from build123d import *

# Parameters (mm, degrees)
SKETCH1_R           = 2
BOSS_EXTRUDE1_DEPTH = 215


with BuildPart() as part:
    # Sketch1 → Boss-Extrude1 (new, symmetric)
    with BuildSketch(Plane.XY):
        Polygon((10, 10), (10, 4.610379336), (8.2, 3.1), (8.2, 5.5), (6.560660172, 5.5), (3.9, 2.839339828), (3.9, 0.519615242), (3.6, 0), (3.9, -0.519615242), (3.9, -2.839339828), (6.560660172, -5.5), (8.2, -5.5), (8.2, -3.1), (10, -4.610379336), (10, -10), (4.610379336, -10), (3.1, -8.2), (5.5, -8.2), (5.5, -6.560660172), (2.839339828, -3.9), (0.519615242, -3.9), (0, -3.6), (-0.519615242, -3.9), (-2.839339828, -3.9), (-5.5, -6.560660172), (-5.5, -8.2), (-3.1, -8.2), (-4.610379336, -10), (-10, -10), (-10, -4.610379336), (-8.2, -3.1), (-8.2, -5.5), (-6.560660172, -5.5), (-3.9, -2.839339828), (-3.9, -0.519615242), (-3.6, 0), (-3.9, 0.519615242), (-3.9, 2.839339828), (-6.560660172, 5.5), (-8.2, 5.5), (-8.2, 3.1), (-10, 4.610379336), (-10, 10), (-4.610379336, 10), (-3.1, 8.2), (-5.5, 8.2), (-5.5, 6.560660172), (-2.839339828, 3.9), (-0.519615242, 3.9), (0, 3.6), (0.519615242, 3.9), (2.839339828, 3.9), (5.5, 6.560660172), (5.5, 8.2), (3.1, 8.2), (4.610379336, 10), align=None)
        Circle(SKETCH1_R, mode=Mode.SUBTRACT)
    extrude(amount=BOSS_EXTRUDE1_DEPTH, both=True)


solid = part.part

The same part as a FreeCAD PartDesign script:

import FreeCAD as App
import Part
import Sketcher
Q = App.Units.Quantity

doc = App.newDocument("Part")
params = doc.addObject("Spreadsheet::Sheet", "Params")
for row, (alias, value) in enumerate([
    ("sketch1_diameter", "4 mm"),
    ("sketch1_width", "2.4 mm"),
    ("sketch1_length", "0.6 mm"),
    ("pad1_length", "430 mm"),
], start=1):
    params.set(f"A{row}", alias)
    params.set(f"B{row}", "=" + value)
    params.setAlias(f"B{row}", alias)

body = doc.addObject("PartDesign::Body", "Body")

# Sketch on XY plane
sketch1 = doc.addObject("Sketcher::SketchObject", "Sketch")
body.addObject(sketch1)
sketch1.AttachmentSupport = (doc.XY_Plane, [""])
sketch1.MapMode = "FlatFace"
sketch1.addGeometry([
    Part.LineSegment(App.Vector(10, 4.610379, 0), App.Vector(10, 10, 0)),  # 0
    Part.LineSegment(App.Vector(10, 10, 0), App.Vector(4.610379, 10, 0)),  # 1
    Part.LineSegment(App.Vector(4.610379, 10, 0), App.Vector(3.1, 8.2, 0)),  # 2
    Part.LineSegment(App.Vector(3.1, 8.2, 0), App.Vector(5.5, 8.2, 0)),  # 3
    Part.LineSegment(App.Vector(5.5, 8.2, 0), App.Vector(5.5, 6.56066, 0)),  # 4
    Part.LineSegment(App.Vector(5.5, 6.56066, 0), App.Vector(2.83934, 3.9, 0)),  # 5
    Part.LineSegment(App.Vector(2.83934, 3.9, 0), App.Vector(0.519615, 3.9, 0)),  # 6
    Part.LineSegment(App.Vector(0.519615, 3.9, 0), App.Vector(0, 3.6, 0)),  # 7
    Part.LineSegment(App.Vector(0, 3.6, 0), App.Vector(-0.519615, 3.9, 0)),  # 8
    Part.LineSegment(App.Vector(-0.519615, 3.9, 0), App.Vector(-2.83934, 3.9, 0)),  # 9
    Part.LineSegment(App.Vector(-2.83934, 3.9, 0), App.Vector(-5.5, 6.56066, 0)),  # 10
    Part.LineSegment(App.Vector(-5.5, 6.56066, 0), App.Vector(-5.5, 8.2, 0)),  # 11
    Part.LineSegment(App.Vector(-5.5, 8.2, 0), App.Vector(-3.1, 8.2, 0)),  # 12
    Part.LineSegment(App.Vector(-3.1, 8.2, 0), App.Vector(-4.610379, 10, 0)),  # 13
    Part.LineSegment(App.Vector(-4.610379, 10, 0), App.Vector(-10, 10, 0)),  # 14
    Part.LineSegment(App.Vector(-10, 10, 0), App.Vector(-10, 4.610379, 0)),  # 15
    Part.LineSegment(App.Vector(-10, 4.610379, 0), App.Vector(-8.2, 3.1, 0)),  # 16
    Part.LineSegment(App.Vector(-8.2, 3.1, 0), App.Vector(-8.2, 5.5, 0)),  # 17
    Part.LineSegment(App.Vector(-8.2, 5.5, 0), App.Vector(-6.56066, 5.5, 0)),  # 18
    Part.LineSegment(App.Vector(-6.56066, 5.5, 0), App.Vector(-3.9, 2.83934, 0)),  # 19
    Part.LineSegment(App.Vector(-3.9, 2.83934, 0), App.Vector(-3.9, 0.519615, 0)),  # 20
    Part.LineSegment(App.Vector(-3.9, 0.519615, 0), App.Vector(-3.6, 0, 0)),  # 21
    Part.LineSegment(App.Vector(-3.6, 0, 0), App.Vector(-3.9, -0.519615, 0)),  # 22
    Part.LineSegment(App.Vector(-3.9, -0.519615, 0), App.Vector(-3.9, -2.83934, 0)),  # 23
    Part.LineSegment(App.Vector(-3.9, -2.83934, 0), App.Vector(-6.56066, -5.5, 0)),  # 24
    Part.LineSegment(App.Vector(-6.56066, -5.5, 0), App.Vector(-8.2, -5.5, 0)),  # 25
    Part.LineSegment(App.Vector(-8.2, -5.5, 0), App.Vector(-8.2, -3.1, 0)),  # 26
    Part.LineSegment(App.Vector(-8.2, -3.1, 0), App.Vector(-10, -4.610379, 0)),  # 27
    Part.LineSegment(App.Vector(-10, -4.610379, 0), App.Vector(-10, -10, 0)),  # 28
    Part.LineSegment(App.Vector(-10, -10, 0), App.Vector(-4.610379, -10, 0)),  # 29
    Part.LineSegment(App.Vector(-4.610379, -10, 0), App.Vector(-3.1, -8.2, 0)),  # 30
    Part.LineSegment(App.Vector(-3.1, -8.2, 0), App.Vector(-5.5, -8.2, 0)),  # 31
    Part.LineSegment(App.Vector(-5.5, -8.2, 0), App.Vector(-5.5, -6.56066, 0)),  # 32
    Part.LineSegment(App.Vector(-5.5, -6.56066, 0), App.Vector(-2.83934, -3.9, 0)),  # 33
    Part.LineSegment(App.Vector(-2.83934, -3.9, 0), App.Vector(-0.519615, -3.9, 0)),  # 34
    Part.LineSegment(App.Vector(-0.519615, -3.9, 0), App.Vector(0, -3.6, 0)),  # 35
    Part.LineSegment(App.Vector(0, -3.6, 0), App.Vector(0.519615, -3.9, 0)),  # 36
    Part.LineSegment(App.Vector(0.519615, -3.9, 0), App.Vector(2.83934, -3.9, 0)),  # 37
    Part.LineSegment(App.Vector(2.83934, -3.9, 0), App.Vector(5.5, -6.56066, 0)),  # 38
    Part.LineSegment(App.Vector(5.5, -6.56066, 0), App.Vector(5.5, -8.2, 0)),  # 39
    Part.LineSegment(App.Vector(5.5, -8.2, 0), App.Vector(3.1, -8.2, 0)),  # 40
    Part.LineSegment(App.Vector(3.1, -8.2, 0), App.Vector(4.610379, -10, 0)),  # 41
    Part.LineSegment(App.Vector(4.610379, -10, 0), App.Vector(10, -10, 0)),  # 42
    Part.LineSegment(App.Vector(10, -10, 0), App.Vector(10, -4.610379, 0)),  # 43
    Part.LineSegment(App.Vector(10, -4.610379, 0), App.Vector(8.2, -3.1, 0)),  # 44
    Part.LineSegment(App.Vector(8.2, -3.1, 0), App.Vector(8.2, -5.5, 0)),  # 45
    Part.LineSegment(App.Vector(8.2, -5.5, 0), App.Vector(6.56066, -5.5, 0)),  # 46
    Part.LineSegment(App.Vector(6.56066, -5.5, 0), App.Vector(3.9, -2.83934, 0)),  # 47
    Part.LineSegment(App.Vector(3.9, -2.83934, 0), App.Vector(3.9, -0.519615, 0)),  # 48
    Part.LineSegment(App.Vector(3.9, -0.519615, 0), App.Vector(3.6, 0, 0)),  # 49
    Part.LineSegment(App.Vector(3.6, 0, 0), App.Vector(3.9, 0.519615, 0)),  # 50
    Part.LineSegment(App.Vector(3.9, 0.519615, 0), App.Vector(3.9, 2.83934, 0)),  # 51
    Part.LineSegment(App.Vector(3.9, 2.83934, 0), App.Vector(6.56066, 5.5, 0)),  # 52
    Part.LineSegment(App.Vector(6.56066, 5.5, 0), App.Vector(8.2, 5.5, 0)),  # 53
    Part.LineSegment(App.Vector(8.2, 5.5, 0), App.Vector(8.2, 3.1, 0)),  # 54
    Part.LineSegment(App.Vector(8.2, 3.1, 0), App.Vector(10, 4.610379, 0)),  # 55
    Part.Circle(App.Vector(0, 0, 0), App.Vector(0, 0, 1), 2),  # 56
], False)
sketch1.addConstraint([
    Sketcher.Constraint("Coincident", 0, 2, 1, 1),
    Sketcher.Constraint("Coincident", 1, 2, 2, 1),
    Sketcher.Constraint("Coincident", 2, 2, 3, 1),
    Sketcher.Constraint("Coincident", 3, 2, 4, 1),
    Sketcher.Constraint("Coincident", 4, 2, 5, 1),
    Sketcher.Constraint("Coincident", 5, 2, 6, 1),
    Sketcher.Constraint("Coincident", 6, 2, 7, 1),
    Sketcher.Constraint("Coincident", 7, 2, 8, 1),
    Sketcher.Constraint("Coincident", 8, 2, 9, 1),
    Sketcher.Constraint("Coincident", 9, 2, 10, 1),
    Sketcher.Constraint("Coincident", 10, 2, 11, 1),
    Sketcher.Constraint("Coincident", 11, 2, 12, 1),
    Sketcher.Constraint("Coincident", 12, 2, 13, 1),
    Sketcher.Constraint("Coincident", 13, 2, 14, 1),
    Sketcher.Constraint("Coincident", 14, 2, 15, 1),
    Sketcher.Constraint("Coincident", 15, 2, 16, 1),
    Sketcher.Constraint("Coincident", 16, 2, 17, 1),
    Sketcher.Constraint("Coincident", 17, 2, 18, 1),
    Sketcher.Constraint("Coincident", 18, 2, 19, 1),
    Sketcher.Constraint("Coincident", 19, 2, 20, 1),
    Sketcher.Constraint("Coincident", 20, 2, 21, 1),
    Sketcher.Constraint("Coincident", 21, 2, 22, 1),
    Sketcher.Constraint("Coincident", 22, 2, 23, 1),
    Sketcher.Constraint("Coincident", 23, 2, 24, 1),
    Sketcher.Constraint("Coincident", 24, 2, 25, 1),
    Sketcher.Constraint("Coincident", 25, 2, 26, 1),
    Sketcher.Constraint("Coincident", 26, 2, 27, 1),
    Sketcher.Constraint("Coincident", 27, 2, 28, 1),
    Sketcher.Constraint("Coincident", 28, 2, 29, 1),
    Sketcher.Constraint("Coincident", 29, 2, 30, 1),
    Sketcher.Constraint("Coincident", 30, 2, 31, 1),
    Sketcher.Constraint("Coincident", 31, 2, 32, 1),
    Sketcher.Constraint("Coincident", 32, 2, 33, 1),
    Sketcher.Constraint("Coincident", 33, 2, 34, 1),
    Sketcher.Constraint("Coincident", 34, 2, 35, 1),
    Sketcher.Constraint("Coincident", 35, 2, 36, 1),
    Sketcher.Constraint("Coincident", 36, 2, 37, 1),
    Sketcher.Constraint("Coincident", 37, 2, 38, 1),
    Sketcher.Constraint("Coincident", 38, 2, 39, 1),
    Sketcher.Constraint("Coincident", 39, 2, 40, 1),
    Sketcher.Constraint("Coincident", 40, 2, 41, 1),
    Sketcher.Constraint("Coincident", 41, 2, 42, 1),
    Sketcher.Constraint("Coincident", 42, 2, 43, 1),
    Sketcher.Constraint("Coincident", 43, 2, 44, 1),
    Sketcher.Constraint("Coincident", 44, 2, 45, 1),
    Sketcher.Constraint("Coincident", 45, 2, 46, 1),
    Sketcher.Constraint("Coincident", 46, 2, 47, 1),
    Sketcher.Constraint("Coincident", 47, 2, 48, 1),
    Sketcher.Constraint("Coincident", 48, 2, 49, 1),
    Sketcher.Constraint("Coincident", 49, 2, 50, 1),
    Sketcher.Constraint("Coincident", 50, 2, 51, 1),
    Sketcher.Constraint("Coincident", 51, 2, 52, 1),
    Sketcher.Constraint("Coincident", 52, 2, 53, 1),
    Sketcher.Constraint("Coincident", 53, 2, 54, 1),
    Sketcher.Constraint("Coincident", 54, 2, 55, 1),
    Sketcher.Constraint("Coincident", 55, 2, 0, 1),
    Sketcher.Constraint("Vertical", 0),
    Sketcher.Constraint("Horizontal", 1),
    Sketcher.Constraint("Horizontal", 3),
    Sketcher.Constraint("Vertical", 4),
    Sketcher.Constraint("Horizontal", 6),
    Sketcher.Constraint("Horizontal", 9),
    Sketcher.Constraint("Vertical", 11),
    Sketcher.Constraint("Horizontal", 12),
    Sketcher.Constraint("Horizontal", 14),
    Sketcher.Constraint("Vertical", 15),
    Sketcher.Constraint("Vertical", 17),
    Sketcher.Constraint("Horizontal", 18),
    Sketcher.Constraint("Vertical", 20),
    Sketcher.Constraint("Vertical", 23),
    Sketcher.Constraint("Horizontal", 25),
    Sketcher.Constraint("Vertical", 26),
    Sketcher.Constraint("Vertical", 28),
    Sketcher.Constraint("Horizontal", 29),
    Sketcher.Constraint("Horizontal", 31),
    Sketcher.Constraint("Vertical", 32),
    Sketcher.Constraint("Horizontal", 34),
    Sketcher.Constraint("Horizontal", 37),
    Sketcher.Constraint("Vertical", 39),
    Sketcher.Constraint("Horizontal", 40),
    Sketcher.Constraint("Horizontal", 42),
    Sketcher.Constraint("Vertical", 43),
    Sketcher.Constraint("Vertical", 45),
    Sketcher.Constraint("Horizontal", 46),
    Sketcher.Constraint("Vertical", 48),
    Sketcher.Constraint("Vertical", 51),
    Sketcher.Constraint("Horizontal", 53),
    Sketcher.Constraint("Vertical", 54),
    Sketcher.Constraint("Coincident", 56, 3, -1, 1),
    Sketcher.Constraint("Symmetric", 0, 2, 28, 2, -1, 1),
    Sketcher.Constraint("Symmetric", 2, 2, 30, 2, -1, 1),
    Sketcher.Constraint("Symmetric", 4, 2, 32, 2, -1, 1),
    Sketcher.Constraint("Symmetric", 5, 2, 33, 2, -1, 1),
    Sketcher.Constraint("Symmetric", 7, 2, 35, 2, -1, 1),
    Sketcher.Constraint("Symmetric", 8, 2, 36, 2, -1, 1),
    Sketcher.Constraint("Symmetric", 10, 2, 38, 2, -1, 1),
    Sketcher.Constraint("Symmetric", 12, 2, 40, 2, -1, 1),
    Sketcher.Constraint("Symmetric", 13, 2, 41, 2, -1, 1),
    Sketcher.Constraint("Symmetric", 15, 2, 43, 2, -1, 1),
    Sketcher.Constraint("Symmetric", 16, 2, 44, 2, -1, 1),
    Sketcher.Constraint("Symmetric", 18, 2, 46, 2, -1, 1),
    Sketcher.Constraint("Symmetric", 19, 2, 47, 2, -1, 1),
    Sketcher.Constraint("Symmetric", 21, 2, 49, 2, -1, 1),
    Sketcher.Constraint("Symmetric", 22, 2, 50, 2, -1, 1),
    Sketcher.Constraint("Symmetric", 24, 2, 52, 2, -1, 1),
    Sketcher.Constraint("Symmetric", 26, 2, 54, 2, -1, 1),
    Sketcher.Constraint("Symmetric", 6, 2, 8, 2, -2),
    Sketcher.Constraint("Symmetric", 4, 2, 10, 2, -2),
    Sketcher.Constraint("Symmetric", 2, 2, 12, 2, -2),
    Sketcher.Constraint("Symmetric", 1, 2, 13, 2, -2),
    Sketcher.Constraint("Symmetric", 27, 2, 43, 2, -2),
    Sketcher.Constraint("Symmetric", 26, 2, 44, 2, -2),
    Sketcher.Constraint("Symmetric", 24, 2, 46, 2, -2),
    Sketcher.Constraint("Symmetric", 23, 2, 47, 2, -2),
    Sketcher.Constraint("PointOnObject", 7, 2, -2),
    Sketcher.Constraint("PointOnObject", 21, 2, -1),
    Sketcher.Constraint("Perpendicular", 5, 10),
    Sketcher.Constraint("Perpendicular", 2, 16),
    Sketcher.Constraint("Parallel", 10, 19),
    Sketcher.Constraint("Perpendicular", 7, 21),
    Sketcher.Constraint("Perpendicular", 8, 22),
    Sketcher.Constraint("Perpendicular", 19, 24),
    Sketcher.Constraint("Perpendicular", 16, 30),
    Sketcher.Constraint("Perpendicular", 21, 35),
    Sketcher.Constraint("Perpendicular", 33, 38),
    Sketcher.Constraint("Perpendicular", 35, 49),
    Sketcher.Constraint("Perpendicular", 47, 52),
    Sketcher.Constraint("Perpendicular", 41, 55),
    Sketcher.Constraint("Equal", 42, 0),
    Sketcher.Constraint("Equal", 53, 4),
    Sketcher.Constraint("Equal", 40, 17),
    Sketcher.Constraint("Equal", 37, 20),
    Sketcher.Constraint("Equal", 13, 16),
    Sketcher.Constraint("Equal", 10, 19),
    Sketcher.Constraint("Equal", 8, 21),
    Sketcher.Constraint("Diameter", 56, 4.0),
    Sketcher.Constraint("Angle", 2, Q("-130 deg")),
    Sketcher.Constraint("Angle", 7, Q("-150 deg")),
    Sketcher.Constraint("DistanceX", 3, 1, 3, 2, 2.4),
    Sketcher.Constraint("DistanceX", -1, 1, 0, 2, 10.0),
    Sketcher.Constraint("Distance", 7, 0.6),
    Sketcher.Constraint("DistanceX", -1, 1, 2, 2, 3.1),
    Sketcher.Constraint("DistanceY", -1, 1, 2, 2, 8.2),
    Sketcher.Constraint("DistanceY", -1, 1, 5, 2, 3.9),
    Sketcher.Constraint("DistanceX", 18, 1, 18, 2, 1.63934),
])
sketch1.setExpression("Constraints[135]", "Params.sketch1_diameter")
sketch1.setExpression("Constraints[138]", "Params.sketch1_width")
sketch1.setExpression("Constraints[140]", "Params.sketch1_length")
pad1 = doc.addObject("PartDesign::Pad", "Pad")
body.addObject(pad1)
pad1.Profile = sketch1
pad1.setExpression("Length", "Params.pad1_length")
pad1.Midplane = True

doc.recompute()
